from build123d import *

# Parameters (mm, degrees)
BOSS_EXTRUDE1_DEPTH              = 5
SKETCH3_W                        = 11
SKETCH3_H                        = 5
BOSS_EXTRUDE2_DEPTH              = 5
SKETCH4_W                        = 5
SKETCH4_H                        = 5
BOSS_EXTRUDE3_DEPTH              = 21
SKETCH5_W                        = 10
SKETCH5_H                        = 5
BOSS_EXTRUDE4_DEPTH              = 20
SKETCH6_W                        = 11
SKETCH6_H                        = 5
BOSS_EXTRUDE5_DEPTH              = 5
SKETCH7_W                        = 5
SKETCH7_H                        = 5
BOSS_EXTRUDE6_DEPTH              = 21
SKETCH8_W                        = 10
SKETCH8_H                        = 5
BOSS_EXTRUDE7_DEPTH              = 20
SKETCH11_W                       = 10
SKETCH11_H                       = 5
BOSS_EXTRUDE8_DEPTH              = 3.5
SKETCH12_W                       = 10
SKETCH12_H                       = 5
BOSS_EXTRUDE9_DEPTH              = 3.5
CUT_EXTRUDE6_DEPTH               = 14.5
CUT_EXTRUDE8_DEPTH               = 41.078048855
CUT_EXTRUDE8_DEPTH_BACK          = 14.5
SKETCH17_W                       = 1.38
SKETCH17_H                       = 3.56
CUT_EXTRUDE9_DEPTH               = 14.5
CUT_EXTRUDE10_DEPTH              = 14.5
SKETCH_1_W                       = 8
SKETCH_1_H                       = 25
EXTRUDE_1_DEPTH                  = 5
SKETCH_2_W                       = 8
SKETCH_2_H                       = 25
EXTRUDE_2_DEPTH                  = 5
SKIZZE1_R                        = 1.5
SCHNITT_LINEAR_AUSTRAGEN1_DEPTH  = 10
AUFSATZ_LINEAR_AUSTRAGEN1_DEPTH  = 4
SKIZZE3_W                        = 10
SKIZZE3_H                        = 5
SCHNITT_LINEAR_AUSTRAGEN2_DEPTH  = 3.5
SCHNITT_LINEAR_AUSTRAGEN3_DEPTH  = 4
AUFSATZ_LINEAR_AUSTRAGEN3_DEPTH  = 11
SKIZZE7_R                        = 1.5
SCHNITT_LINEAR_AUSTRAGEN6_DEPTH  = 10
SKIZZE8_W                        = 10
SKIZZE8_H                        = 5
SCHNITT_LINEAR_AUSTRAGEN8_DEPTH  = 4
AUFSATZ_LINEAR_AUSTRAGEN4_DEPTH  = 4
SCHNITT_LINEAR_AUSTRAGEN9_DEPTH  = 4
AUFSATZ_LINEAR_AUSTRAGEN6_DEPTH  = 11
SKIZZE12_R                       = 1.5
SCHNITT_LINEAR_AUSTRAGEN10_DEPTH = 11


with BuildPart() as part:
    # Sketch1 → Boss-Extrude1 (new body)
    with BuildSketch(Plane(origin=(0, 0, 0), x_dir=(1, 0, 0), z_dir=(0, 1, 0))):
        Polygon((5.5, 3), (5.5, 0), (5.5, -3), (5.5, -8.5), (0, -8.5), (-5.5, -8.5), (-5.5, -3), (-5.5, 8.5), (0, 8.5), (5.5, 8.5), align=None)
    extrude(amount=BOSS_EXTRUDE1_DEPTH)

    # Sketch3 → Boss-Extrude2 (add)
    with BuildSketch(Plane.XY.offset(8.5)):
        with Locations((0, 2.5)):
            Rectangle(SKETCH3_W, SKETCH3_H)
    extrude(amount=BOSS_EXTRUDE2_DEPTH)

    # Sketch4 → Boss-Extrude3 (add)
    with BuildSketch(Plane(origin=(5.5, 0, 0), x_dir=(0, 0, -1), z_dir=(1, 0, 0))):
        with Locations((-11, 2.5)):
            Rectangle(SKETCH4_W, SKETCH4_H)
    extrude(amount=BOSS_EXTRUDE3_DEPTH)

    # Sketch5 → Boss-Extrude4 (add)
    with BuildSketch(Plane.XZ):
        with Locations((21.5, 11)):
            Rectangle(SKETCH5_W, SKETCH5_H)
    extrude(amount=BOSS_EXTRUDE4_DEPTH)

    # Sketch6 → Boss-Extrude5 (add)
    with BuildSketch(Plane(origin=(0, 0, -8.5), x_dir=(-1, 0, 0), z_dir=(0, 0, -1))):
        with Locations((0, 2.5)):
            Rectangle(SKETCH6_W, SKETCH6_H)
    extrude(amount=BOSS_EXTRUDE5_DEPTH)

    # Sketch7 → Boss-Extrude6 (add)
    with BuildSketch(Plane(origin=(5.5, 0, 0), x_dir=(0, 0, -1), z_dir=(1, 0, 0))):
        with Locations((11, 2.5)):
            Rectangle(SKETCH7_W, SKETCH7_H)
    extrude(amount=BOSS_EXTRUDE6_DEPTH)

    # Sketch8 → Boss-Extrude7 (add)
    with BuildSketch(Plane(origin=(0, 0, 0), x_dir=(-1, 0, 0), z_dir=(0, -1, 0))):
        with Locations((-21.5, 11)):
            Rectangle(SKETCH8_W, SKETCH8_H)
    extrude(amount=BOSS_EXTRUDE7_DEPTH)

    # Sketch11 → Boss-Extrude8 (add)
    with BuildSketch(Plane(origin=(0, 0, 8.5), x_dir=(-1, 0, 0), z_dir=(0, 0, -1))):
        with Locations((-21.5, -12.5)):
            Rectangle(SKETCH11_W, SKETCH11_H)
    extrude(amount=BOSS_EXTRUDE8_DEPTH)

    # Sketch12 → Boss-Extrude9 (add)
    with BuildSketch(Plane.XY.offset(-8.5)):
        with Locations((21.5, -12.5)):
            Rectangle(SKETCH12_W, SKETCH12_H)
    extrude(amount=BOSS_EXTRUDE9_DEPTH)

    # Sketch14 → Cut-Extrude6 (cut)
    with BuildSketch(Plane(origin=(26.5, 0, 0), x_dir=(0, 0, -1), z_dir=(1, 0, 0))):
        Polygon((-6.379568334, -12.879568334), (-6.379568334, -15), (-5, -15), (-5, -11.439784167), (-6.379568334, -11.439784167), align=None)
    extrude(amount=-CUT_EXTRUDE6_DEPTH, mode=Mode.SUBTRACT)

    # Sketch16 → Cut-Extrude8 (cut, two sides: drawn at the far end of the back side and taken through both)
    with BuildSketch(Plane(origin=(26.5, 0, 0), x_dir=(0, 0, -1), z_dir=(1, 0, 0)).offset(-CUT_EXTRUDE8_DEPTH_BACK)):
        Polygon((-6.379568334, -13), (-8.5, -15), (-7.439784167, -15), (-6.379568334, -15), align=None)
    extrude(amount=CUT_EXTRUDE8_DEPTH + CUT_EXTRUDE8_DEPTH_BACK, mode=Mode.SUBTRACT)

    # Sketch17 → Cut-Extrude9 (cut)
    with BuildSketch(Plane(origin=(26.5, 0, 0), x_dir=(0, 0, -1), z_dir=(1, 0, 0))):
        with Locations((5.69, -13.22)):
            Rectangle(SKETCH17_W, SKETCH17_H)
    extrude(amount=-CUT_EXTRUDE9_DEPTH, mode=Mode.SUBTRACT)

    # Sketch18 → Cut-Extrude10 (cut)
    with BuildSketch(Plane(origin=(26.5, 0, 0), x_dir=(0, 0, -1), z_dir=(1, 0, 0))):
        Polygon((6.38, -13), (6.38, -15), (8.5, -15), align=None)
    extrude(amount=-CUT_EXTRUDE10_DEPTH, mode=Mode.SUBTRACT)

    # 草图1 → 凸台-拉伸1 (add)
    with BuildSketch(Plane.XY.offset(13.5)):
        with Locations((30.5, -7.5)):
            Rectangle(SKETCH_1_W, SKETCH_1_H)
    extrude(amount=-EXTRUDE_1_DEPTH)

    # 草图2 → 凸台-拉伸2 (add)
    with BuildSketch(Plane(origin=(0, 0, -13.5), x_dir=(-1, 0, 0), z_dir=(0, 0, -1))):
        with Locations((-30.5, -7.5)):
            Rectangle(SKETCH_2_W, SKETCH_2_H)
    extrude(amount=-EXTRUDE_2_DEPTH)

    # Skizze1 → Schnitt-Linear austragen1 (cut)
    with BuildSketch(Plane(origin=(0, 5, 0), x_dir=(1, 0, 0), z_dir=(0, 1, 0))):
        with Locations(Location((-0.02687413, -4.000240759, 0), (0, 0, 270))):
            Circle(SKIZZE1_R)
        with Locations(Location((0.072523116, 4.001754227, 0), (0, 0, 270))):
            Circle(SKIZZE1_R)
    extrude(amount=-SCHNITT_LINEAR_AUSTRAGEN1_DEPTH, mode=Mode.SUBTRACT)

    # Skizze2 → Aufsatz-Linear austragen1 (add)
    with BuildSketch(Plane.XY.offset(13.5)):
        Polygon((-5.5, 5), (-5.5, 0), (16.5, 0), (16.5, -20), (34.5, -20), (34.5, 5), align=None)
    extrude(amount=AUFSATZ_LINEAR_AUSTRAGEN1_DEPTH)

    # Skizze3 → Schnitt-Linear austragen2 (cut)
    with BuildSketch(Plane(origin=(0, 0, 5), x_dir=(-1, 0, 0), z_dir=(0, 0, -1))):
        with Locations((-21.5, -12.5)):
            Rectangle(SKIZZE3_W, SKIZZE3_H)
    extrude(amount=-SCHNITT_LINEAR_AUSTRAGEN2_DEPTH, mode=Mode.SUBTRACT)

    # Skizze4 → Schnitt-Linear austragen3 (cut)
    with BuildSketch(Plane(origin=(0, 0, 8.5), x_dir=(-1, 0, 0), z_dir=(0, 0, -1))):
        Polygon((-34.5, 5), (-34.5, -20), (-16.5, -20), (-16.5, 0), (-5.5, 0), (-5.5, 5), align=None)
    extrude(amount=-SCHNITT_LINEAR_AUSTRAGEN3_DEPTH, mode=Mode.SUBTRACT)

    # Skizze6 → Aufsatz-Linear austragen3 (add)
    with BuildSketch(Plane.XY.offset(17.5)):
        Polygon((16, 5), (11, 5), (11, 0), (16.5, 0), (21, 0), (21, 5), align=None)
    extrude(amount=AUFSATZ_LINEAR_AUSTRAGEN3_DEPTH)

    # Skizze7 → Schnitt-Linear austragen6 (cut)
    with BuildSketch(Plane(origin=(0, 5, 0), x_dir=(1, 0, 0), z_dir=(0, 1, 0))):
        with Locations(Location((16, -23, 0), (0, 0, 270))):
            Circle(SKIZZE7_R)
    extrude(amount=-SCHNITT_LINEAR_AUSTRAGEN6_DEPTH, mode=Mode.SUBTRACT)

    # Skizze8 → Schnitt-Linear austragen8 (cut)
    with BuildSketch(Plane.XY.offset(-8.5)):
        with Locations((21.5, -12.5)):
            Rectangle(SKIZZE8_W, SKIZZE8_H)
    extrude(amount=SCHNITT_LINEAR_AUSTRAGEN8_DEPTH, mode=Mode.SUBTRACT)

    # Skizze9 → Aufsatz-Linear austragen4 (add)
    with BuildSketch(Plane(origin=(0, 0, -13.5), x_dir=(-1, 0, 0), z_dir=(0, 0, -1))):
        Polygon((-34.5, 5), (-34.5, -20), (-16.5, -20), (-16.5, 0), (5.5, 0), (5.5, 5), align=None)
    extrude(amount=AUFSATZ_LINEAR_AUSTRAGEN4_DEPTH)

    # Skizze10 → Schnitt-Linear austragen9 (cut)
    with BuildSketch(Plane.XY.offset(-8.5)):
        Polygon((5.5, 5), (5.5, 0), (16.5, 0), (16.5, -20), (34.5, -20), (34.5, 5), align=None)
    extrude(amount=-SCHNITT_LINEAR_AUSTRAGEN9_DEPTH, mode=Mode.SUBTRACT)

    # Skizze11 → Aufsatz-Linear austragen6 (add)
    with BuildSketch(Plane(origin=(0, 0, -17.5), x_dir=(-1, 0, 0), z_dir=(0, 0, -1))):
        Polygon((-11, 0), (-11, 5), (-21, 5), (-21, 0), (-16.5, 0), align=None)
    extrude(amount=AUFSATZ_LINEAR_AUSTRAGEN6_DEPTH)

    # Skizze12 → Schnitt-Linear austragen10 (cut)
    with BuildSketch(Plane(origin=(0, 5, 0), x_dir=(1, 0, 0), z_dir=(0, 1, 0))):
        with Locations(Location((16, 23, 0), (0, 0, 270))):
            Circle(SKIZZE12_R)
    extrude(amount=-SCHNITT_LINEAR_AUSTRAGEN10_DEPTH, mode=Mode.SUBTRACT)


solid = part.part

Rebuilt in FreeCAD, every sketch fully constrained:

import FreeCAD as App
import Part
import Sketcher
from FreeCAD import Vector
Q = App.Units.Quantity

doc = App.newDocument("Part")
params = doc.addObject("Spreadsheet::Sheet", "Params")
for row, (alias, value) in enumerate([
    ("sketch1_width", "11 mm"),
    ("sketch1_height", "17 mm"),
    ("pad1_length", "5 mm"),
    ("sketch2_width", "11 mm"),
    ("sketch2_height", "5 mm"),
    ("pad2_length", "5 mm"),
    ("sketch3_width", "5 mm"),
    ("pad3_length", "21 mm"),
    ("sketch4_width", "10 mm"),
    ("sketch4_height", "5 mm"),
    ("pad4_length", "20 mm"),
    ("sketch5_width", "11 mm"),
    ("sketch5_height", "5 mm"),
    ("pad5_length", "5 mm"),
    ("sketch6_width", "5 mm"),
    ("pad6_length", "21 mm"),
    ("sketch7_width", "10 mm"),
    ("sketch7_height", "5 mm"),
    ("pad7_length", "20 mm"),
    ("sketch8_width", "10 mm"),
    ("sketch8_height", "5 mm"),
    ("pad8_length", "3.5 mm"),
    ("sketch9_width", "10 mm"),
    ("sketch9_height", "5 mm"),
    ("pad9_length", "3.5 mm"),
    ("pocket1_length", "14.5 mm"),
    ("sketch11_width", "2 mm"),
    ("sketch12_width", "3.56 mm"),
    ("sketch12_height", "1.38 mm"),
    ("pocket3_length", "14.5 mm"),
    ("sketch13_width", "2 mm"),
    ("sketch13_height", "2.12 mm"),
    ("pocket4_length", "14.5 mm"),
    ("sketch14_width", "8 mm"),
    ("sketch14_height", "25 mm"),
    ("pad10_length", "5 mm"),
    ("sketch15_width", "8 mm"),
    ("sketch15_height", "25 mm"),
    ("pad11_length", "5 mm"),
    ("sketch16_diameter", "3 mm"),
    ("pocket5_length", "10 mm"),
    ("sketch17_width", "22 mm"),
    ("sketch17_width2", "18 mm"),
    ("sketch17_height", "5 mm"),
    ("sketch17_height2", "20 mm"),
    ("pad12_length", "4 mm"),
    ("sketch18_width", "10 mm"),
    ("sketch18_height", "5 mm"),
    ("pocket6_length", "3.5 mm"),
    ("sketch19_width", "18 mm"),
    ("sketch19_width2", "11 mm"),
    ("sketch19_height", "25 mm"),
    ("sketch19_height2", "20 mm"),
    ("pocket7_length", "4 mm"),
    ("sketch20_width", "10 mm"),
    ("sketch20_height", "5 mm"),
    ("pad13_length", "11 mm"),
    ("sketch21_diameter", "3 mm"),
    ("pocket8_length", "10 mm"),
    ("sketch22_width", "10 mm"),
    ("sketch22_height", "5 mm"),
    ("pocket9_length", "4 mm"),
    ("sketch23_width", "18 mm"),
    ("sketch23_width2", "22 mm"),
    ("sketch23_height", "25 mm"),
    ("sketch23_height2", "20 mm"),
    ("pad14_length", "4 mm"),
    ("sketch24_width", "11 mm"),
    ("sketch24_width2", "18 mm"),
    ("sketch24_height", "5 mm"),
    ("sketch24_height2", "20 mm"),
    ("pocket10_length", "4 mm"),
    ("sketch25_width", "10 mm"),
    ("sketch25_height", "5 mm"),
    ("pad15_length", "11 mm"),
    ("sketch26_diameter", "3 mm"),
    ("pocket11_length", "11 mm"),
], start=1):
    params.set(f"A{row}", alias)
    params.set(f"B{row}", "=" + value)
    params.setAlias(f"B{row}", alias)

body = doc.addObject("PartDesign::Body", "Body")

sketch1 = body.newObject("Sketcher::SketchObject", "Sketch")
sketch1.AttachmentSupport = (doc.getObject("XZ_Plane"), [""])
sketch1.MapMode = "FlatFace"
sketch1.addGeometry(Part.LineSegment(Vector(6, 8, 0), Vector(6, -8, 0)), False)
sketch1.addGeometry(Part.LineSegment(Vector(6, -8, 0), Vector(-6, -8, 0)), False)
sketch1.addGeometry(Part.LineSegment(Vector(-6, -8, 0), Vector(-6, 8, 0)), False)
sketch1.addGeometry(Part.LineSegment(Vector(-6, 8, 0), Vector(6, 8, 0)), False)
sketch1.addConstraint(Sketcher.Constraint("Coincident", 0, 2, 1, 1))
sketch1.addConstraint(Sketcher.Constraint("Coincident", 1, 2, 2, 1))
sketch1.addConstraint(Sketcher.Constraint("Coincident", 2, 2, 3, 1))
sketch1.addConstraint(Sketcher.Constraint("Coincident", 3, 2, 0, 1))
sketch1.addConstraint(Sketcher.Constraint("Vertical", 0))
sketch1.addConstraint(Sketcher.Constraint("Horizontal", 1))
sketch1.addConstraint(Sketcher.Constraint("Vertical", 2))
sketch1.addConstraint(Sketcher.Constraint("Horizontal", 3))
sketch1.addConstraint(Sketcher.Constraint("Symmetric", 0, 2, 2, 2, -1, 1))
sketch1.addConstraint(Sketcher.Constraint("DistanceX", 1, 2, 1, 1, Q("11 mm")))
sketch1.addConstraint(Sketcher.Constraint("DistanceY", 0, 2, 0, 1, Q("17 mm")))
sketch1.setExpression("Constraints[9]", "Params.sketch1_width")
sketch1.setExpression("Constraints[10]", "Params.sketch1_height")
pad1 = body.newObject("PartDesign::Pad", "Pad")
pad1.Profile = sketch1
pad1.setExpression("Length", "Params.pad1_length")
pad1.Reversed = True

sketch2 = body.newObject("Sketcher::SketchObject", "Sketch001")
sketch2.AttachmentSupport = (doc.getObject("XY_Plane"), [""])
sketch2.MapMode = "FlatFace"
sketch2.AttachmentOffset = App.Placement(Vector(0, 0, 8.5), App.Rotation())
sketch2.addGeometry(Part.LineSegment(Vector(-6, 5, 0), Vector(-6, 0, 0)), False)
sketch2.addGeometry(Part.LineSegment(Vector(-6, 0, 0), Vector(6, 0, 0)), False)
sketch2.addGeometry(Part.LineSegment(Vector(6, 0, 0), Vector(6, 5, 0)), False)
sketch2.addGeometry(Part.LineSegment(Vector(6, 5, 0), Vector(-6, 5, 0)), False)
sketch2.addConstraint(Sketcher.Constraint("Coincident", 0, 2, 1, 1))
sketch2.addConstraint(Sketcher.Constraint("Coincident", 1, 2, 2, 1))
sketch2.addConstraint(Sketcher.Constraint("Coincident", 2, 2, 3, 1))
sketch2.addConstraint(Sketcher.Constraint("Coincident", 3, 2, 0, 1))
sketch2.addConstraint(Sketcher.Constraint("Vertical", 0))
sketch2.addConstraint(Sketcher.Constraint("Horizontal", 1))
sketch2.addConstraint(Sketcher.Constraint("Vertical", 2))
sketch2.addConstraint(Sketcher.Constraint("Horizontal", 3))
sketch2.addConstraint(Sketcher.Constraint("Symmetric", 0, 2, 1, 2, -1, 1))
sketch2.addConstraint(Sketcher.Constraint("DistanceX", 1, 1, 1, 2, Q("11 mm")))
sketch2.addConstraint(Sketcher.Constraint("DistanceY", 0, 2, 0, 1, Q("5 mm")))
sketch2.setExpression("Constraints[9]", "Params.sketch2_width")
sketch2.setExpression("Constraints[10]", "Params.sketch2_height")
pad2 = body.newObject("PartDesign::Pad", "Pad001")
pad2.Profile = sketch2
pad2.setExpression("Length", "Params.pad2_length")

sketch3 = body.newObject("Sketcher::SketchObject", "Sketch002")
sketch3.AttachmentSupport = (doc.getObject("YZ_Plane"), [""])
sketch3.MapMode = "FlatFace"
sketch3.AttachmentOffset = App.Placement(Vector(0, 0, 5.5), App.Rotation())
sketch3.addGeometry(Part.LineSegment(Vector(5, 14, 0), Vector(0, 14, 0)), False)
sketch3.addGeometry(Part.LineSegment(Vector(0, 14, 0), Vector(0, 8, 0)), False)
sketch3.addGeometry(Part.LineSegment(Vector(0, 8, 0), Vector(5, 8, 0)), False)
sketch3.addGeometry(Part.LineSegment(Vector(5, 8, 0), Vector(5, 14, 0)), False)
sketch3.addConstraint(Sketcher.Constraint("Coincident", 0, 2, 1, 1))
sketch3.addConstraint(Sketcher.Constraint("Coincident", 1, 2, 2, 1))
sketch3.addConstraint(Sketcher.Constraint("Coincident", 2, 2, 3, 1))
sketch3.addConstraint(Sketcher.Constraint("Coincident", 3, 2, 0, 1))
sketch3.addConstraint(Sketcher.Constraint("Horizontal", 0))
sketch3.addConstraint(Sketcher.Constraint("Vertical", 1))
sketch3.addConstraint(Sketcher.Constraint("Horizontal", 2))
sketch3.addConstraint(Sketcher.Constraint("Vertical", 3))
sketch3.addConstraint(Sketcher.Constraint("PointOnObject", 0, 2, -2))
sketch3.addConstraint(Sketcher.Constraint("Equal", 2, 1))
sketch3.addConstraint(Sketcher.Constraint("DistanceX", 0, 2, 0, 1, Q("5 mm")))
sketch3.addConstraint(Sketcher.Constraint("DistanceY", -1, 1, 0, 2, Q("13.5 mm")))
sketch3.setExpression("Constraints[10]", "Params.sketch3_width")
pad3 = body.newObject("PartDesign::Pad", "Pad002")
pad3.Profile = sketch3
pad3.setExpression("Length", "Params.pad3_length")

sketch4 = body.newObject("Sketcher::SketchObject", "Sketch003")
sketch4.AttachmentSupport = (doc.getObject("XZ_Plane"), [""])
sketch4.MapMode = "FlatFace"
sketch4.addGeometry(Part.LineSegment(Vector(16, 14, 0), Vector(16, 8, 0)), False)
sketch4.addGeometry(Part.LineSegment(Vector(16, 8, 0), Vector(26, 8, 0)), False)
sketch4.addGeometry(Part.LineSegment(Vector(26, 8, 0), Vector(26, 14, 0)), False)
sketch4.addGeometry(Part.LineSegment(Vector(26, 14, 0), Vector(16, 14, 0)), False)
sketch4.addConstraint(Sketcher.Constraint("Coincident", 0, 2, 1, 1))
sketch4.addConstraint(Sketcher.Constraint("Coincident", 1, 2, 2, 1))
sketch4.addConstraint(Sketcher.Constraint("Coincident", 2, 2, 3, 1))
sketch4.addConstraint(Sketcher.Constraint("Coincident", 3, 2, 0, 1))
sketch4.addConstraint(Sketcher.Constraint("Vertical", 0))
sketch4.addConstraint(Sketcher.Constraint("Horizontal", 1))
sketch4.addConstraint(Sketcher.Constraint("Vertical", 2))
sketch4.addConstraint(Sketcher.Constraint("Horizontal", 3))
sketch4.addConstraint(Sketcher.Constraint("DistanceX", 1, 1, 1, 2, Q("10 mm")))
sketch4.addConstraint(Sketcher.Constraint("DistanceY", 0, 2, 0, 1, Q("5 mm")))
sketch4.addConstraint(Sketcher.Constraint("DistanceX", -1, 1, 0, 2, Q("16.5 mm")))
sketch4.addConstraint(Sketcher.Constraint("DistanceY", -1, 1, 0, 2, Q("8.5 mm")))
sketch4.setExpression("Constraints[8]", "Params.sketch4_width")
sketch4.setExpression("Constraints[9]", "Params.sketch4_height")
pad4 = body.newObject("PartDesign::Pad", "Pad003")
pad4.Profile = sketch4
pad4.setExpression("Length", "Params.pad4_length")

sketch5 = body.newObject("Sketcher::SketchObject", "Sketch004")
sketch5.AttachmentSupport = (doc.getObject("XY_Plane"), [""])
sketch5.MapMode = "FlatFace"
sketch5.AttachmentOffset = App.Placement(Vector(0, 0, -8.5), App.Rotation())
sketch5.addGeometry(Part.LineSegment(Vector(6, 5, 0), Vector(6, 0, 0)), False)
sketch5.addGeometry(Part.LineSegment(Vector(6, 0, 0), Vector(-6, 0, 0)), False)
sketch5.addGeometry(Part.LineSegment(Vector(-6, 0, 0), Vector(-6, 5, 0)), False)
sketch5.addGeometry(Part.LineSegment(Vector(-6, 5, 0), Vector(6, 5, 0)), False)
sketch5.addConstraint(Sketcher.Constraint("Coincident", 0, 2, 1, 1))
sketch5.addConstraint(Sketcher.Constraint("Coincident", 1, 2, 2, 1))
sketch5.addConstraint(Sketcher.Constraint("Coincident", 2, 2, 3, 1))
sketch5.addConstraint(Sketcher.Constraint("Coincident", 3, 2, 0, 1))
sketch5.addConstraint(Sketcher.Constraint("Vertical", 0))
sketch5.addConstraint(Sketcher.Constraint("Horizontal", 1))
sketch5.addConstraint(Sketcher.Constraint("Vertical", 2))
sketch5.addConstraint(Sketcher.Constraint("Horizontal", 3))
sketch5.addConstraint(Sketcher.Constraint("Symmetric", 0, 2, 1, 2, -1, 1))
sketch5.addConstraint(Sketcher.Constraint("DistanceX", 1, 2, 1, 1, Q("11 mm")))
sketch5.addConstraint(Sketcher.Constraint("DistanceY", 0, 2, 0, 1, Q("5 mm")))
sketch5.setExpression("Constraints[9]", "Params.sketch5_width")
sketch5.setExpression("Constraints[10]", "Params.sketch5_height")
pad5 = body.newObject("PartDesign::Pad", "Pad004")
pad5.Profile = sketch5
pad5.setExpression("Length", "Params.pad5_length")
pad5.Reversed = True

sketch6 = body.newObject("Sketcher::SketchObject", "Sketch005")
sketch6.AttachmentSupport = (doc.getObject("YZ_Plane"), [""])
sketch6.MapMode = "FlatFace"
sketch6.AttachmentOffset = App.Placement(Vector(0, 0, 5.5), App.Rotation())
sketch6.addGeometry(Part.LineSegment(Vector(5, -8, 0), Vector(0, -8, 0)), False)
sketch6.addGeometry(Part.LineSegment(Vector(0, -8, 0), Vector(0, -14, 0)), False)
sketch6.addGeometry(Part.LineSegment(Vector(0, -14, 0), Vector(5, -14, 0)), False)
sketch6.addGeometry(Part.LineSegment(Vector(5, -14, 0), Vector(5, -8, 0)), False)
sketch6.addConstraint(Sketcher.Constraint("Coincident", 0, 2, 1, 1))
sketch6.addConstraint(Sketcher.Constraint("Coincident", 1, 2, 2, 1))
sketch6.addConstraint(Sketcher.Constraint("Coincident", 2, 2, 3, 1))
sketch6.addConstraint(Sketcher.Constraint("Coincident", 3, 2, 0, 1))
sketch6.addConstraint(Sketcher.Constraint("Horizontal", 0))
sketch6.addConstraint(Sketcher.Constraint("Vertical", 1))
sketch6.addConstraint(Sketcher.Constraint("Horizontal", 2))
sketch6.addConstraint(Sketcher.Constraint("Vertical", 3))
sketch6.addConstraint(Sketcher.Constraint("PointOnObject", 0, 2, -2))
sketch6.addConstraint(Sketcher.Constraint("Equal", 2, 1))
sketch6.addConstraint(Sketcher.Constraint("DistanceX", 0, 2, 0, 1, Q("5 mm")))
sketch6.addConstraint(Sketcher.Constraint("DistanceY", 0, 2, -1, 1, Q("8.5 mm")))
sketch6.setExpression("Constraints[10]", "Params.sketch6_width")
pad6 = body.newObject("PartDesign::Pad", "Pad005")
pad6.Profile = sketch6
pad6.setExpression("Length", "Params.pad6_length")

sketch7 = body.newObject("Sketcher::SketchObject", "Sketch006")
sketch7.AttachmentSupport = (doc.getObject("XZ_Plane"), [""])
sketch7.MapMode = "FlatFace"
sketch7.addGeometry(Part.LineSegment(Vector(26, -14, 0), Vector(26, -8, 0)), False)
sketch7.addGeometry(Part.LineSegment(Vector(26, -8, 0), Vector(16, -8, 0)), False)
sketch7.addGeometry(Part.LineSegment(Vector(16, -8, 0), Vector(16, -14, 0)), False)
sketch7.addGeometry(Part.LineSegment(Vector(16, -14, 0), Vector(26, -14, 0)), False)
sketch7.addConstraint(Sketcher.Constraint("Coincident", 0, 2, 1, 1))
sketch7.addConstraint(Sketcher.Constraint("Coincident", 1, 2, 2, 1))
sketch7.addConstraint(Sketcher.Constraint("Coincident", 2, 2, 3, 1))
sketch7.addConstraint(Sketcher.Constraint("Coincident", 3, 2, 0, 1))
sketch7.addConstraint(Sketcher.Constraint("Vertical", 0))
sketch7.addConstraint(Sketcher.Constraint("Horizontal", 1))
sketch7.addConstraint(Sketcher.Constraint("Vertical", 2))
sketch7.addConstraint(Sketcher.Constraint("Horizontal", 3))
sketch7.addConstraint(Sketcher.Constraint("DistanceX", 1, 2, 1, 1, Q("10 mm")))
sketch7.addConstraint(Sketcher.Constraint("DistanceY", 0, 1, 0, 2, Q("5 mm")))
sketch7.addConstraint(Sketcher.Constraint("DistanceX", -1, 1, 0, 2, Q("26.5 mm")))
sketch7.addConstraint(Sketcher.Constraint("DistanceY", 0, 2, -1, 1, Q("8.5 mm")))
sketch7.setExpression("Constraints[8]", "Params.sketch7_width")
sketch7.setExpression("Constraints[9]", "Params.sketch7_height")
pad7 = body.newObject("PartDesign::Pad", "Pad006")
pad7.Profile = sketch7
pad7.setExpression("Length", "Params.pad7_length")

sketch8 = body.newObject("Sketcher::SketchObject", "Sketch007")
sketch8.AttachmentSupport = (doc.getObject("XY_Plane"), [""])
sketch8.MapMode = "FlatFace"
sketch8.AttachmentOffset = App.Placement(Vector(0, 0, 8.5), App.Rotation())
sketch8.addGeometry(Part.LineSegment(Vector(26, -10, 0), Vector(26, -15, 0)), False)
sketch8.addGeometry(Part.LineSegment(Vector(26, -15, 0), Vector(16, -15, 0)), False)
sketch8.addGeometry(Part.LineSegment(Vector(16, -15, 0), Vector(16, -10, 0)), False)
sketch8.addGeometry(Part.LineSegment(Vector(16, -10, 0), Vector(26, -10, 0)), False)
sketch8.addConstraint(Sketcher.Constraint("Coincident", 0, 2, 1, 1))
sketch8.addConstraint(Sketcher.Constraint("Coincident", 1, 2, 2, 1))
sketch8.addConstraint(Sketcher.Constraint("Coincident", 2, 2, 3, 1))
sketch8.addConstraint(Sketcher.Constraint("Coincident", 3, 2, 0, 1))
sketch8.addConstraint(Sketcher.Constraint("Vertical", 0))
sketch8.addConstraint(Sketcher.Constraint("Horizontal", 1))
sketch8.addConstraint(Sketcher.Constraint("Vertical", 2))
sketch8.addConstraint(Sketcher.Constraint("Horizontal", 3))
sketch8.addConstraint(Sketcher.Constraint("DistanceX", 1, 2, 1, 1, Q("10 mm")))
sketch8.addConstraint(Sketcher.Constraint("DistanceY", 0, 2, 0, 1, Q("5 mm")))
sketch8.addConstraint(Sketcher.Constraint("DistanceY", 0, 2, -1, 1, Q("15 mm")))
sketch8.addConstraint(Sketcher.Constraint("DistanceX", -1, 1, 0, 2, Q("26.5 mm")))
sketch8.setExpression("Constraints[8]", "Params.sketch8_width")
sketch8.setExpression("Constraints[9]", "Params.sketch8_height")
pad8 = body.newObject("PartDesign::Pad", "Pad007")
pad8.Profile = sketch8
pad8.setExpression("Length", "Params.pad8_length")
pad8.Reversed = True

sketch9 = body.newObject("Sketcher::SketchObject", "Sketch008")
sketch9.AttachmentSupport = (doc.getObject("XY_Plane"), [""])
sketch9.MapMode = "FlatFace"
sketch9.AttachmentOffset = App.Placement(Vector(0, 0, -8.5), App.Rotation())
sketch9.addGeometry(Part.LineSegment(Vector(16, -10, 0), Vector(16, -15, 0)), False)
sketch9.addGeometry(Part.LineSegment(Vector(16, -15, 0), Vector(26, -15, 0)), False)
sketch9.addGeometry(Part.LineSegment(Vector(26, -15, 0), Vector(26, -10, 0)), False)
sketch9.addGeometry(Part.LineSegment(Vector(26, -10, 0), Vector(16, -10, 0)), False)
sketch9.addConstraint(Sketcher.Constraint("Coincident", 0, 2, 1, 1))
sketch9.addConstraint(Sketcher.Constraint("Coincident", 1, 2, 2, 1))
sketch9.addConstraint(Sketcher.Constraint("Coincident", 2, 2, 3, 1))
sketch9.addConstraint(Sketcher.Constraint("Coincident", 3, 2, 0, 1))
sketch9.addConstraint(Sketcher.Constraint("Vertical", 0))
sketch9.addConstraint(Sketcher.Constraint("Horizontal", 1))
sketch9.addConstraint(Sketcher.Constraint("Vertical", 2))
sketch9.addConstraint(Sketcher.Constraint("Horizontal", 3))
sketch9.addConstraint(Sketcher.Constraint("DistanceX", 1, 1, 1, 2, Q("10 mm")))
sketch9.addConstraint(Sketcher.Constraint("DistanceY", 0, 2, 0, 1, Q("5 mm")))
sketch9.addConstraint(Sketcher.Constraint("DistanceY", 0, 2, -1, 1, Q("15 mm")))
sketch9.addConstraint(Sketcher.Constraint("DistanceX", -1, 1, 0, 2, Q("16.5 mm")))
sketch9.setExpression("Constraints[8]", "Params.sketch9_width")
sketch9.setExpression("Constraints[9]", "Params.sketch9_height")
pad9 = body.newObject("PartDesign::Pad", "Pad008")
pad9.Profile = sketch9
pad9.setExpression("Length", "Params.pad9_length")

sketch10 = body.newObject("Sketcher::SketchObject", "Sketch009")
sketch10.AttachmentSupport = (doc.getObject("YZ_Plane"), [""])
sketch10.MapMode = "FlatFace"
sketch10.AttachmentOffset = App.Placement(Vector(0, 0, 26.5), App.Rotation())
sketch10.addGeometry(Part.LineSegment(Vector(-15, 6.4, 0), Vector(-15, 5, 0)), False)
sketch10.addGeometry(Part.LineSegment(Vector(-15, 5, 0), Vector(-11.4, 5, 0)), False)
sketch10.addGeometry(Part.LineSegment(Vector(-11.4, 5, 0), Vector(-11.4, 6.4, 0)), False)
sketch10.addGeometry(Part.LineSegment(Vector(-11.4, 6.4, 0), Vector(-15, 6.4, 0)), False)
sketch10.addConstraint(Sketcher.Constraint("Coincident", 0, 2, 1, 1))
sketch10.addConstraint(Sketcher.Constraint("Coincident", 1, 2, 2, 1))
sketch10.addConstraint(Sketcher.Constraint("Coincident", 2, 2, 3, 1))
sketch10.addConstraint(Sketcher.Constraint("Coincident", 3, 2, 0, 1))
sketch10.addConstraint(Sketcher.Constraint("Vertical", 0))
sketch10.addConstraint(Sketcher.Constraint("Horizontal", 1))
sketch10.addConstraint(Sketcher.Constraint("Vertical", 2))
sketch10.addConstraint(Sketcher.Constraint("Horizontal", 3))
sketch10.addConstraint(Sketcher.Constraint("DistanceX", 0, 2, -1, 1, Q("15 mm")))
sketch10.addConstraint(Sketcher.Constraint("DistanceY", -1, 1, 0, 2, Q("5 mm")))
sketch10.addConstraint(Sketcher.Constraint("DistanceY", 0, 2, 0, 1, Q("1.379568 mm")))
sketch10.addConstraint(Sketcher.Constraint("DistanceX", 1, 1, 1, 2, Q("3.560216 mm")))
pocket1 = body.newObject("PartDesign::Pocket", "Pocket")
pocket1.Profile = sketch10
pocket1.setExpression("Length", "Params.pocket1_length")

sketch11 = body.newObject("Sketcher::SketchObject", "Sketch010")
sketch11.AttachmentSupport = (doc.getObject("YZ_Plane"), [""])
sketch11.MapMode = "FlatFace"
sketch11.AttachmentOffset = App.Placement(Vector(0, 0, 26.5), App.Rotation())
sketch11.addGeometry(Part.LineSegment(Vector(-13, 6.4, 0), Vector(-15, 8.5, 0)), False)
sketch11.addGeometry(Part.LineSegment(Vector(-15, 8.5, 0), Vector(-15, 6.4, 0)), False)
sketch11.addGeometry(Part.LineSegment(Vector(-15, 6.4, 0), Vector(-13, 6.4, 0)), False)
sketch11.addConstraint(Sketcher.Constraint("Coincident", 0, 2, 1, 1))
sketch11.addConstraint(Sketcher.Constraint("Coincident", 1, 2, 2, 1))
sketch11.addConstraint(Sketcher.Constraint("Coincident", 2, 2, 0, 1))
sketch11.addConstraint(Sketcher.Constraint("Vertical", 1))
sketch11.addConstraint(Sketcher.Constraint("Horizontal", 2))
sketch11.addConstraint(Sketcher.Constraint("DistanceX", 2, 1, 2, 2, Q("2 mm")))
sketch11.addConstraint(Sketcher.Constraint("DistanceX", 0, 2, -1, 1, Q("15 mm")))
sketch11.addConstraint(Sketcher.Constraint("DistanceY", -1, 1, 0, 2, Q("8.5 mm")))
sketch11.addConstraint(Sketcher.Constraint("DistanceY", 1, 2, 1, 1, Q("2.120432 mm")))
sketch11.setExpression("Constraints[5]", "Params.sketch11_width")
pocket2 = body.newObject("PartDesign::Pocket", "Pocket001")
pocket2.Profile = sketch11
pocket2.Type = "ThroughAll"
pocket2.Midplane = True

sketch12 = body.newObject("Sketcher::SketchObject", "Sketch011")
sketch12.AttachmentSupport = (doc.getObject("YZ_Plane"), [""])
sketch12.MapMode = "FlatFace"
sketch12.AttachmentOffset = App.Placement(Vector(0, 0, 26.5), App.Rotation())
sketch12.addGeometry(Part.LineSegment(Vector(-11.4, -5, 0), Vector(-15, -5, 0)), False)
sketch12.addGeometry(Part.LineSegment(Vector(-15, -5, 0), Vector(-15, -6.4, 0)), False)
sketch12.addGeometry(Part.LineSegment(Vector(-15, -6.4, 0), Vector(-11.4, -6.4, 0)), False)
sketch12.addGeometry(Part.LineSegment(Vector(-11.4, -6.4, 0), Vector(-11.4, -5, 0)), False)
sketch12.addConstraint(Sketcher.Constraint("Coincident", 0, 2, 1, 1))
sketch12.addConstraint(Sketcher.Constraint("Coincident", 1, 2, 2, 1))
sketch12.addConstraint(Sketcher.Constraint("Coincident", 2, 2, 3, 1))
sketch12.addConstraint(Sketcher.Constraint("Coincident", 3, 2, 0, 1))
sketch12.addConstraint(Sketcher.Constraint("Horizontal", 0))
sketch12.addConstraint(Sketcher.Constraint("Vertical", 1))
sketch12.addConstraint(Sketcher.Constraint("Horizontal", 2))
sketch12.addConstraint(Sketcher.Constraint("Vertical", 3))
sketch12.addConstraint(Sketcher.Constraint("DistanceX", 0, 2, -1, 1, Q("15 mm")))
sketch12.addConstraint(Sketcher.Constraint("DistanceY", 0, 2, -1, 1, Q("5 mm")))
sketch12.addConstraint(Sketcher.Constraint("DistanceX", 0, 2, 0, 1, Q("3.56 mm")))
sketch12.addConstraint(Sketcher.Constraint("DistanceY", 1, 2, 1, 1, Q("1.38 mm")))
sketch12.setExpression("Constraints[10]", "Params.sketch12_width")
sketch12.setExpression("Constraints[11]", "Params.sketch12_height")
pocket3 = body.newObject("PartDesign::Pocket", "Pocket002")
pocket3.Profile = sketch12
pocket3.setExpression("Length", "Params.pocket3_length")

sketch13 = body.newObject("Sketcher::SketchObject", "Sketch012")
sketch13.AttachmentSupport = (doc.getObject("YZ_Plane"), [""])
sketch13.MapMode = "FlatFace"
sketch13.AttachmentOffset = App.Placement(Vector(0, 0, 26.5), App.Rotation())
sketch13.addGeometry(Part.LineSegment(Vector(-13, -6.4, 0), Vector(-15, -6.4, 0)), False)
sketch13.addGeometry(Part.LineSegment(Vector(-15, -6.4, 0), Vector(-15, -8.5, 0)), False)
sketch13.addGeometry(Part.LineSegment(Vector(-15, -8.5, 0), Vector(-13, -6.4, 0)), False)
sketch13.addConstraint(Sketcher.Constraint("Coincident", 0, 2, 1, 1))
sketch13.addConstraint(Sketcher.Constraint("Coincident", 1, 2, 2, 1))
sketch13.addConstraint(Sketcher.Constraint("Coincident", 2, 2, 0, 1))
sketch13.addConstraint(Sketcher.Constraint("Horizontal", 0))
sketch13.addConstraint(Sketcher.Constraint("Vertical", 1))
sketch13.addConstraint(Sketcher.Constraint("DistanceX", 0, 2, 0, 1, Q("2 mm")))
sketch13.addConstraint(Sketcher.Constraint("DistanceX", 0, 2, -1, 1, Q("15 mm")))
sketch13.addConstraint(Sketcher.Constraint("DistanceY", 1, 2, 1, 1, Q("2.12 mm")))
sketch13.addConstraint(Sketcher.Constraint("DistanceY", 1, 2, -1, 1, Q("8.5 mm")))
sketch13.setExpression("Constraints[5]", "Params.sketch13_width")
sketch13.setExpression("Constraints[7]", "Params.sketch13_height")
pocket4 = body.newObject("PartDesign::Pocket", "Pocket003")
pocket4.Profile = sketch13
pocket4.setExpression("Length", "Params.pocket4_length")

sketch14 = body.newObject("Sketcher::SketchObject", "Sketch013")
sketch14.AttachmentSupport = (doc.getObject("XY_Plane"), [""])
sketch14.MapMode = "FlatFace"
sketch14.AttachmentOffset = App.Placement(Vector(0, 0, 13.5), App.Rotation())
sketch14.addGeometry(Part.LineSegment(Vector(26, 5, 0), Vector(26, -20, 0)), False)
sketch14.addGeometry(Part.LineSegment(Vector(26, -20, 0), Vector(34, -20, 0)), False)
sketch14.addGeometry(Part.LineSegment(Vector(34, -20, 0), Vector(34, 5, 0)), False)
sketch14.addGeometry(Part.LineSegment(Vector(34, 5, 0), Vector(26, 5, 0)), False)
sketch14.addConstraint(Sketcher.Constraint("Coincident", 0, 2, 1, 1))
sketch14.addConstraint(Sketcher.Constraint("Coincident", 1, 2, 2, 1))
sketch14.addConstraint(Sketcher.Constraint("Coincident", 2, 2, 3, 1))
sketch14.addConstraint(Sketcher.Constraint("Coincident", 3, 2, 0, 1))
sketch14.addConstraint(Sketcher.Constraint("Vertical", 0))
sketch14.addConstraint(Sketcher.Constraint("Horizontal", 1))
sketch14.addConstraint(Sketcher.Constraint("Vertical", 2))
sketch14.addConstraint(Sketcher.Constraint("Horizontal", 3))
sketch14.addConstraint(Sketcher.Constraint("DistanceX", 1, 1, 1, 2, Q("8 mm")))
sketch14.addConstraint(Sketcher.Constraint("DistanceY", 0, 2, 0, 1, Q("25 mm")))
sketch14.addConstraint(Sketcher.Constraint("DistanceY", 0, 2, -1, 1, Q("20 mm")))
sketch14.addConstraint(Sketcher.Constraint("DistanceX", -1, 1, 0, 2, Q("26.5 mm")))
sketch14.setExpression("Constraints[8]", "Params.sketch14_width")
sketch14.setExpression("Constraints[9]", "Params.sketch14_height")
pad10 = body.newObject("PartDesign::Pad", "Pad009")
pad10.Profile = sketch14
pad10.setExpression("Length", "Params.pad10_length")
pad10.Reversed = True

sketch15 = body.newObject("Sketcher::SketchObject", "Sketch014")
sketch15.AttachmentSupport = (doc.getObject("XY_Plane"), [""])
sketch15.MapMode = "FlatFace"
sketch15.AttachmentOffset = App.Placement(Vector(0, 0, -13.5), App.Rotation())
sketch15.addGeometry(Part.LineSegment(Vector(34, 5, 0), Vector(34, -20, 0)), False)
sketch15.addGeometry(Part.LineSegment(Vector(34, -20, 0), Vector(26, -20, 0)), False)
sketch15.addGeometry(Part.LineSegment(Vector(26, -20, 0), Vector(26, 5, 0)), False)
sketch15.addGeometry(Part.LineSegment(Vector(26, 5, 0), Vector(34, 5, 0)), False)
sketch15.addConstraint(Sketcher.Constraint("Coincident", 0, 2, 1, 1))
sketch15.addConstraint(Sketcher.Constraint("Coincident", 1, 2, 2, 1))
sketch15.addConstraint(Sketcher.Constraint("Coincident", 2, 2, 3, 1))
sketch15.addConstraint(Sketcher.Constraint("Coincident", 3, 2, 0, 1))
sketch15.addConstraint(Sketcher.Constraint("Vertical", 0))
sketch15.addConstraint(Sketcher.Constraint("Horizontal", 1))
sketch15.addConstraint(Sketcher.Constraint("Vertical", 2))
sketch15.addConstraint(Sketcher.Constraint("Horizontal", 3))
sketch15.addConstraint(Sketcher.Constraint("DistanceX", 1, 2, 1, 1, Q("8 mm")))
sketch15.addConstraint(Sketcher.Constraint("DistanceY", 0, 2, 0, 1, Q("25 mm")))
sketch15.addConstraint(Sketcher.Constraint("DistanceY", 0, 2, -1, 1, Q("20 mm")))
sketch15.addConstraint(Sketcher.Constraint("DistanceX", -1, 1, 0, 2, Q("34.5 mm")))
sketch15.setExpression("Constraints[8]", "Params.sketch15_width")
sketch15.setExpression("Constraints[9]", "Params.sketch15_height")
pad11 = body.newObject("PartDesign::Pad", "Pad010")
pad11.Profile = sketch15
pad11.setExpression("Length", "Params.pad11_length")

sketch16 = body.newObject("Sketcher::SketchObject", "Sketch015")
sketch16.AttachmentSupport = (doc.getObject("XZ_Plane"), [""])
sketch16.MapMode = "FlatFace"
sketch16.AttachmentOffset = App.Placement(Vector(0, 0, -5), App.Rotation())
sketch16.addGeometry(Part.Circle(Vector(0, 4, 0), Vector(0, 0, 1), 1.5), False)
sketch16.addGeometry(Part.Circle(Vector(0.1, -4, 0), Vector(0, 0, 1), 1.5), False)
sketch16.addConstraint(Sketcher.Constraint("Equal", 0, 1))
sketch16.addConstraint(Sketcher.Constraint("Diameter", 0, Q("3 mm")))
sketch16.addConstraint(Sketcher.Constraint("DistanceY", -1, 1, 0, 3, Q("4.000241 mm")))
sketch16.addConstraint(Sketcher.Constraint("DistanceX", 0, 3, -1, 1, Q("0.026874 mm")))
sketch16.addConstraint(Sketcher.Constraint("DistanceX", -1, 1, 1, 3, Q("0.072523 mm")))
sketch16.addConstraint(Sketcher.Constraint("DistanceY", 1, 3, -1, 1, Q("4.001754 mm")))
sketch16.setExpression("Constraints[1]", "Params.sketch16_diameter")
pocket5 = body.newObject("PartDesign::Pocket", "Pocket004")
pocket5.Profile = sketch16
pocket5.setExpression("Length", "Params.pocket5_length")
pocket5.Reversed = True

sketch17 = body.newObject("Sketcher::SketchObject", "Sketch016")
sketch17.AttachmentSupport = (doc.getObject("XY_Plane"), [""])
sketch17.MapMode = "FlatFace"
sketch17.AttachmentOffset = App.Placement(Vector(0, 0, 13.5), App.Rotation())
sketch17.addGeometry(Part.LineSegment(Vector(-6, 5, 0), Vector(-6, 0, 0)), False)
sketch17.addGeometry(Part.LineSegment(Vector(-6, 0, 0), Vector(16, 0, 0)), False)
sketch17.addGeometry(Part.LineSegment(Vector(16, 0, 0), Vector(16, -20, 0)), False)
sketch17.addGeometry(Part.LineSegment(Vector(16, -20, 0), Vector(34, -20, 0)), False)
sketch17.addGeometry(Part.LineSegment(Vector(34, -20, 0), Vector(34, 5, 0)), False)
sketch17.addGeometry(Part.LineSegment(Vector(34, 5, 0), Vector(-6, 5, 0)), False)
sketch17.addConstraint(Sketcher.Constraint("Coincident", 0, 2, 1, 1))
sketch17.addConstraint(Sketcher.Constraint("Coincident", 1, 2, 2, 1))
sketch17.addConstraint(Sketcher.Constraint("Coincident", 2, 2, 3, 1))
sketch17.addConstraint(Sketcher.Constraint("Coincident", 3, 2, 4, 1))
sketch17.addConstraint(Sketcher.Constraint("Coincident", 4, 2, 5, 1))
sketch17.addConstraint(Sketcher.Constraint("Coincident", 5, 2, 0, 1))
sketch17.addConstraint(Sketcher.Constraint("Vertical", 0))
sketch17.addConstraint(Sketcher.Constraint("Horizontal", 1))
sketch17.addConstraint(Sketcher.Constraint("Vertical", 2))
sketch17.addConstraint(Sketcher.Constraint("Horizontal", 3))
sketch17.addConstraint(Sketcher.Constraint("Vertical", 4))
sketch17.addConstraint(Sketcher.Constraint("Horizontal", 5))
sketch17.addConstraint(Sketcher.Constraint("PointOnObject", 0, 2, -1))
sketch17.addConstraint(Sketcher.Constraint("DistanceX", 1, 1, 1, 2, Q("22 mm")))
sketch17.addConstraint(Sketcher.Constraint("DistanceX", 3, 1, 3, 2, Q("18 mm")))
sketch17.addConstraint(Sketcher.Constraint("DistanceY", 0, 2, 0, 1, Q("5 mm")))
sketch17.addConstraint(Sketcher.Constraint("DistanceY", 2, 2, 2, 1, Q("20 mm")))
sketch17.addConstraint(Sketcher.Constraint("DistanceX", 0, 2, -1, 1, Q("5.5 mm")))
sketch17.setExpression("Constraints[13]", "Params.sketch17_width")
sketch17.setExpression("Constraints[14]", "Params.sketch17_width2")
sketch17.setExpression("Constraints[15]", "Params.sketch17_height")
sketch17.setExpression("Constraints[16]", "Params.sketch17_height2")
pad12 = body.newObject("PartDesign::Pad", "Pad011")
pad12.Profile = sketch17
pad12.setExpression("Length", "Params.pad12_length")

sketch18 = body.newObject("Sketcher::SketchObject", "Sketch017")
sketch18.AttachmentSupport = (doc.getObject("XY_Plane"), [""])
sketch18.MapMode = "FlatFace"
sketch18.AttachmentOffset = App.Placement(Vector(0, 0, 5), App.Rotation())
sketch18.addGeometry(Part.LineSegment(Vector(26, -10, 0), Vector(26, -15, 0)), False)
sketch18.addGeometry(Part.LineSegment(Vector(26, -15, 0), Vector(16, -15, 0)), False)
sketch18.addGeometry(Part.LineSegment(Vector(16, -15, 0), Vector(16, -10, 0)), False)
sketch18.addGeometry(Part.LineSegment(Vector(16, -10, 0), Vector(26, -10, 0)), False)
sketch18.addConstraint(Sketcher.Constraint("Coincident", 0, 2, 1, 1))
sketch18.addConstraint(Sketcher.Constraint("Coincident", 1, 2, 2, 1))
sketch18.addConstraint(Sketcher.Constraint("Coincident", 2, 2, 3, 1))
sketch18.addConstraint(Sketcher.Constraint("Coincident", 3, 2, 0, 1))
sketch18.addConstraint(Sketcher.Constraint("Vertical", 0))
sketch18.addConstraint(Sketcher.Constraint("Horizontal", 1))
sketch18.addConstraint(Sketcher.Constraint("Vertical", 2))
sketch18.addConstraint(Sketcher.Constraint("Horizontal", 3))
sketch18.addConstraint(Sketcher.Constraint("DistanceX", 1, 2, 1, 1, Q("10 mm")))
sketch18.addConstraint(Sketcher.Constraint("DistanceY", 0, 2, 0, 1, Q("5 mm")))
sketch18.addConstraint(Sketcher.Constraint("DistanceY", 0, 2, -1, 1, Q("15 mm")))
sketch18.addConstraint(Sketcher.Constraint("DistanceX", -1, 1, 0, 2, Q("26.5 mm")))
sketch18.setExpression("Constraints[8]", "Params.sketch18_width")
sketch18.setExpression("Constraints[9]", "Params.sketch18_height")
pocket6 = body.newObject("PartDesign::Pocket", "Pocket005")
pocket6.Profile = sketch18
pocket6.setExpression("Length", "Params.pocket6_length")
pocket6.Reversed = True

sketch19 = body.newObject("Sketcher::SketchObject", "Sketch018")
sketch19.AttachmentSupport = (doc.getObject("XY_Plane"), [""])
sketch19.MapMode = "FlatFace"
sketch19.AttachmentOffset = App.Placement(Vector(0, 0, 8.5), App.Rotation())
sketch19.addGeometry(Part.LineSegment(Vector(34, 5, 0), Vector(34, -20, 0)), False)
sketch19.addGeometry(Part.LineSegment(Vector(34, -20, 0), Vector(16, -20, 0)), False)
sketch19.addGeometry(Part.LineSegment(Vector(16, -20, 0), Vector(16, 0, 0)), False)
sketch19.addGeometry(Part.LineSegment(Vector(16, 0, 0), Vector(6, 0, 0)), False)
sketch19.addGeometry(Part.LineSegment(Vector(6, 0, 0), Vector(6, 5, 0)), False)
sketch19.addGeometry(Part.LineSegment(Vector(6, 5, 0), Vector(34, 5, 0)), False)
sketch19.addConstraint(Sketcher.Constraint("Coincident", 0, 2, 1, 1))
sketch19.addConstraint(Sketcher.Constraint("Coincident", 1, 2, 2, 1))
sketch19.addConstraint(Sketcher.Constraint("Coincident", 2, 2, 3, 1))
sketch19.addConstraint(Sketcher.Constraint("Coincident", 3, 2, 4, 1))
sketch19.addConstraint(Sketcher.Constraint("Coincident", 4, 2, 5, 1))
sketch19.addConstraint(Sketcher.Constraint("Coincident", 5, 2, 0, 1))
sketch19.addConstraint(Sketcher.Constraint("Vertical", 0))
sketch19.addConstraint(Sketcher.Constraint("Horizontal", 1))
sketch19.addConstraint(Sketcher.Constraint("Vertical", 2))
sketch19.addConstraint(Sketcher.Constraint("Horizontal", 3))
sketch19.addConstraint(Sketcher.Constraint("Vertical", 4))
sketch19.addConstraint(Sketcher.Constraint("Horizontal", 5))
sketch19.addConstraint(Sketcher.Constraint("PointOnObject", 2, 2, -1))
sketch19.addConstraint(Sketcher.Constraint("DistanceX", 1, 2, 1, 1, Q("18 mm")))
sketch19.addConstraint(Sketcher.Constraint("DistanceX", 3, 2, 3, 1, Q("11 mm")))
sketch19.addConstraint(Sketcher.Constraint("DistanceY", 0, 2, 0, 1, Q("25 mm")))
sketch19.addConstraint(Sketcher.Constraint("DistanceY", 2, 1, 2, 2, Q("20 mm")))
sketch19.addConstraint(Sketcher.Constraint("DistanceX", -1, 1, 0, 2, Q("34.5 mm")))
sketch19.setExpression("Constraints[13]", "Params.sketch19_width")
sketch19.setExpression("Constraints[14]", "Params.sketch19_width2")
sketch19.setExpression("Constraints[15]", "Params.sketch19_height")
sketch19.setExpression("Constraints[16]", "Params.sketch19_height2")
pocket7 = body.newObject("PartDesign::Pocket", "Pocket006")
pocket7.Profile = sketch19
pocket7.setExpression("Length", "Params.pocket7_length")
pocket7.Reversed = True

sketch20 = body.newObject("Sketcher::SketchObject", "Sketch019")
sketch20.AttachmentSupport = (doc.getObject("XY_Plane"), [""])
sketch20.MapMode = "FlatFace"
sketch20.AttachmentOffset = App.Placement(Vector(0, 0, 17.5), App.Rotation())
sketch20.addGeometry(Part.LineSegment(Vector(11, 5, 0), Vector(11, 0, 0)), False)
sketch20.addGeometry(Part.LineSegment(Vector(11, 0, 0), Vector(21, 0, 0)), False)
sketch20.addGeometry(Part.LineSegment(Vector(21, 0, 0), Vector(21, 5, 0)), False)
sketch20.addGeometry(Part.LineSegment(Vector(21, 5, 0), Vector(11, 5, 0)), False)
sketch20.addConstraint(Sketcher.Constraint("Coincident", 0, 2, 1, 1))
sketch20.addConstraint(Sketcher.Constraint("Coincident", 1, 2, 2, 1))
sketch20.addConstraint(Sketcher.Constraint("Coincident", 2, 2, 3, 1))
sketch20.addConstraint(Sketcher.Constraint("Coincident", 3, 2, 0, 1))
sketch20.addConstraint(Sketcher.Constraint("Vertical", 0))
sketch20.addConstraint(Sketcher.Constraint("Horizontal", 1))
sketch20.addConstraint(Sketcher.Constraint("Vertical", 2))
sketch20.addConstraint(Sketcher.Constraint("Horizontal", 3))
sketch20.addConstraint(Sketcher.Constraint("PointOnObject", 0, 2, -1))
sketch20.addConstraint(Sketcher.Constraint("DistanceX", 1, 1, 1, 2, Q("10 mm")))
sketch20.addConstraint(Sketcher.Constraint("DistanceY", 0, 2, 0, 1, Q("5 mm")))
sketch20.addConstraint(Sketcher.Constraint("DistanceX", -1, 1, 0, 2, Q("11 mm")))
sketch20.setExpression("Constraints[9]", "Params.sketch20_width")
sketch20.setExpression("Constraints[10]", "Params.sketch20_height")
pad13 = body.newObject("PartDesign::Pad", "Pad012")
pad13.Profile = sketch20
pad13.setExpression("Length", "Params.pad13_length")

sketch21 = body.newObject("Sketcher::SketchObject", "Sketch020")
sketch21.AttachmentSupport = (doc.getObject("XZ_Plane"), [""])
sketch21.MapMode = "FlatFace"
sketch21.AttachmentOffset = App.Placement(Vector(0, 0, -5), App.Rotation())
sketch21.addGeometry(Part.Circle(Vector(16, 23, 0), Vector(0, 0, 1), 1.5), False)
sketch21.addConstraint(Sketcher.Constraint("Diameter", 0, Q("3 mm")))
sketch21.addConstraint(Sketcher.Constraint("DistanceX", -1, 1, 0, 3, Q("16 mm")))
sketch21.addConstraint(Sketcher.Constraint("DistanceY", -1, 1, 0, 3, Q("23 mm")))
sketch21.setExpression("Constraints[0]", "Params.sketch21_diameter")
pocket8 = body.newObject("PartDesign::Pocket", "Pocket007")
pocket8.Profile = sketch21
pocket8.setExpression("Length", "Params.pocket8_length")
pocket8.Reversed = True

sketch22 = body.newObject("Sketcher::SketchObject", "Sketch021")
sketch22.AttachmentSupport = (doc.getObject("XY_Plane"), [""])
sketch22.MapMode = "FlatFace"
sketch22.AttachmentOffset = App.Placement(Vector(0, 0, -8.5), App.Rotation())
sketch22.addGeometry(Part.LineSegment(Vector(16, -10, 0), Vector(16, -15, 0)), False)
sketch22.addGeometry(Part.LineSegment(Vector(16, -15, 0), Vector(26, -15, 0)), False)
sketch22.addGeometry(Part.LineSegment(Vector(26, -15, 0), Vector(26, -10, 0)), False)
sketch22.addGeometry(Part.LineSegment(Vector(26, -10, 0), Vector(16, -10, 0)), False)
sketch22.addConstraint(Sketcher.Constraint("Coincident", 0, 2, 1, 1))
sketch22.addConstraint(Sketcher.Constraint("Coincident", 1, 2, 2, 1))
sketch22.addConstraint(Sketcher.Constraint("Coincident", 2, 2, 3, 1))
sketch22.addConstraint(Sketcher.Constraint("Coincident", 3, 2, 0, 1))
sketch22.addConstraint(Sketcher.Constraint("Vertical", 0))
sketch22.addConstraint(Sketcher.Constraint("Horizontal", 1))
sketch22.addConstraint(Sketcher.Constraint("Vertical", 2))
sketch22.addConstraint(Sketcher.Constraint("Horizontal", 3))
sketch22.addConstraint(Sketcher.Constraint("DistanceX", 1, 1, 1, 2, Q("10 mm")))
sketch22.addConstraint(Sketcher.Constraint("DistanceY", 0, 2, 0, 1, Q("5 mm")))
sketch22.addConstraint(Sketcher.Constraint("DistanceY", 0, 2, -1, 1, Q("15 mm")))
sketch22.addConstraint(Sketcher.Constraint("DistanceX", -1, 1, 0, 2, Q("16.5 mm")))
sketch22.setExpression("Constraints[8]", "Params.sketch22_width")
sketch22.setExpression("Constraints[9]", "Params.sketch22_height")
pocket9 = body.newObject("PartDesign::Pocket", "Pocket008")
pocket9.Profile = sketch22
pocket9.setExpression("Length", "Params.pocket9_length")
pocket9.Reversed = True

sketch23 = body.newObject("Sketcher::SketchObject", "Sketch022")
sketch23.AttachmentSupport = (doc.getObject("XY_Plane"), [""])
sketch23.MapMode = "FlatFace"
sketch23.AttachmentOffset = App.Placement(Vector(0, 0, -13.5), App.Rotation())
sketch23.addGeometry(Part.LineSegment(Vector(34, 5, 0), Vector(34, -20, 0)), False)
sketch23.addGeometry(Part.LineSegment(Vector(34, -20, 0), Vector(16, -20, 0)), False)
sketch23.addGeometry(Part.LineSegment(Vector(16, -20, 0), Vector(16, 0, 0)), False)
sketch23.addGeometry(Part.LineSegment(Vector(16, 0, 0), Vector(-6, 0, 0)), False)
sketch23.addGeometry(Part.LineSegment(Vector(-6, 0, 0), Vector(-6, 5, 0)), False)
sketch23.addGeometry(Part.LineSegment(Vector(-6, 5, 0), Vector(34, 5, 0)), False)
sketch23.addConstraint(Sketcher.Constraint("Coincident", 0, 2, 1, 1))
sketch23.addConstraint(Sketcher.Constraint("Coincident", 1, 2, 2, 1))
sketch23.addConstraint(Sketcher.Constraint("Coincident", 2, 2, 3, 1))
sketch23.addConstraint(Sketcher.Constraint("Coincident", 3, 2, 4, 1))
sketch23.addConstraint(Sketcher.Constraint("Coincident", 4, 2, 5, 1))
sketch23.addConstraint(Sketcher.Constraint("Coincident", 5, 2, 0, 1))
sketch23.addConstraint(Sketcher.Constraint("Vertical", 0))
sketch23.addConstraint(Sketcher.Constraint("Horizontal", 1))
sketch23.addConstraint(Sketcher.Constraint("Vertical", 2))
sketch23.addConstraint(Sketcher.Constraint("Horizontal", 3))
sketch23.addConstraint(Sketcher.Constraint("Vertical", 4))
sketch23.addConstraint(Sketcher.Constraint("Horizontal", 5))
sketch23.addConstraint(Sketcher.Constraint("PointOnObject", 2, 2, -1))
sketch23.addConstraint(Sketcher.Constraint("DistanceX", 1, 2, 1, 1, Q("18 mm")))
sketch23.addConstraint(Sketcher.Constraint("DistanceX", 3, 2, 3, 1, Q("22 mm")))
sketch23.addConstraint(Sketcher.Constraint("DistanceY", 0, 2, 0, 1, Q("25 mm")))
sketch23.addConstraint(Sketcher.Constraint("DistanceY", 2, 1, 2, 2, Q("20 mm")))
sketch23.addConstraint(Sketcher.Constraint("DistanceX", -1, 1, 0, 2, Q("34.5 mm")))
sketch23.setExpression("Constraints[13]", "Params.sketch23_width")
sketch23.setExpression("Constraints[14]", "Params.sketch23_width2")
sketch23.setExpression("Constraints[15]", "Params.sketch23_height")
sketch23.setExpression("Constraints[16]", "Params.sketch23_height2")
pad14 = body.newObject("PartDesign::Pad", "Pad013")
pad14.Profile = sketch23
pad14.setExpression("Length", "Params.pad14_length")
pad14.Reversed = True

sketch24 = body.newObject("Sketcher::SketchObject", "Sketch023")
sketch24.AttachmentSupport = (doc.getObject("XY_Plane"), [""])
sketch24.MapMode = "FlatFace"
sketch24.AttachmentOffset = App.Placement(Vector(0, 0, -8.5), App.Rotation())
sketch24.addGeometry(Part.LineSegment(Vector(6, 5, 0), Vector(6, 0, 0)), False)
sketch24.addGeometry(Part.LineSegment(Vector(6, 0, 0), Vector(16, 0, 0)), False)
sketch24.addGeometry(Part.LineSegment(Vector(16, 0, 0), Vector(16, -20, 0)), False)
sketch24.addGeometry(Part.LineSegment(Vector(16, -20, 0), Vector(34, -20, 0)), False)
sketch24.addGeometry(Part.LineSegment(Vector(34, -20, 0), Vector(34, 5, 0)), False)
sketch24.addGeometry(Part.LineSegment(Vector(34, 5, 0), Vector(6, 5, 0)), False)
sketch24.addConstraint(Sketcher.Constraint("Coincident", 0, 2, 1, 1))
sketch24.addConstraint(Sketcher.Constraint("Coincident", 1, 2, 2, 1))
sketch24.addConstraint(Sketcher.Constraint("Coincident", 2, 2, 3, 1))
sketch24.addConstraint(Sketcher.Constraint("Coincident", 3, 2, 4, 1))
sketch24.addConstraint(Sketcher.Constraint("Coincident", 4, 2, 5, 1))
sketch24.addConstraint(Sketcher.Constraint("Coincident", 5, 2, 0, 1))
sketch24.addConstraint(Sketcher.Constraint("Vertical", 0))
sketch24.addConstraint(Sketcher.Constraint("Horizontal", 1))
sketch24.addConstraint(Sketcher.Constraint("Vertical", 2))
sketch24.addConstraint(Sketcher.Constraint("Horizontal", 3))
sketch24.addConstraint(Sketcher.Constraint("Vertical", 4))
sketch24.addConstraint(Sketcher.Constraint("Horizontal", 5))
sketch24.addConstraint(Sketcher.Constraint("PointOnObject", 0, 2, -1))
sketch24.addConstraint(Sketcher.Constraint("DistanceX", 1, 1, 1, 2, Q("11 mm")))
sketch24.addConstraint(Sketcher.Constraint("DistanceX", 3, 1, 3, 2, Q("18 mm")))
sketch24.addConstraint(Sketcher.Constraint("DistanceY", 0, 2, 0, 1, Q("5 mm")))
sketch24.addConstraint(Sketcher.Constraint("DistanceY", 2, 2, 2, 1, Q("20 mm")))
sketch24.addConstraint(Sketcher.Constraint("DistanceX", -1, 1, 0, 2, Q("5.5 mm")))
sketch24.setExpression("Constraints[13]", "Params.sketch24_width")
sketch24.setExpression("Constraints[14]", "Params.sketch24_width2")
sketch24.setExpression("Constraints[15]", "Params.sketch24_height")
sketch24.setExpression("Constraints[16]", "Params.sketch24_height2")
pocket10 = body.newObject("PartDesign::Pocket", "Pocket009")
pocket10.Profile = sketch24
pocket10.setExpression("Length", "Params.pocket10_length")

sketch25 = body.newObject("Sketcher::SketchObject", "Sketch024")
sketch25.AttachmentSupport = (doc.getObject("XY_Plane"), [""])
sketch25.MapMode = "FlatFace"
sketch25.AttachmentOffset = App.Placement(Vector(0, 0, -17.5), App.Rotation())
sketch25.addGeometry(Part.LineSegment(Vector(11, 0, 0), Vector(11, 5, 0)), False)
sketch25.addGeometry(Part.LineSegment(Vector(11, 5, 0), Vector(21, 5, 0)), False)
sketch25.addGeometry(Part.LineSegment(Vector(21, 5, 0), Vector(21, 0, 0)), False)
sketch25.addGeometry(Part.LineSegment(Vector(21, 0, 0), Vector(11, 0, 0)), False)
sketch25.addConstraint(Sketcher.Constraint("Coincident", 0, 2, 1, 1))
sketch25.addConstraint(Sketcher.Constraint("Coincident", 1, 2, 2, 1))
sketch25.addConstraint(Sketcher.Constraint("Coincident", 2, 2, 3, 1))
sketch25.addConstraint(Sketcher.Constraint("Coincident", 3, 2, 0, 1))
sketch25.addConstraint(Sketcher.Constraint("Vertical", 0))
sketch25.addConstraint(Sketcher.Constraint("Horizontal", 1))
sketch25.addConstraint(Sketcher.Constraint("Vertical", 2))
sketch25.addConstraint(Sketcher.Constraint("Horizontal", 3))
sketch25.addConstraint(Sketcher.Constraint("PointOnObject", 2, 2, -1))
sketch25.addConstraint(Sketcher.Constraint("DistanceX", 1, 1, 1, 2, Q("10 mm")))
sketch25.addConstraint(Sketcher.Constraint("DistanceY", 0, 1, 0, 2, Q("5 mm")))
sketch25.addConstraint(Sketcher.Constraint("DistanceX", -1, 1, 0, 2, Q("11 mm")))
sketch25.setExpression("Constraints[9]", "Params.sketch25_width")
sketch25.setExpression("Constraints[10]", "Params.sketch25_height")
pad15 = body.newObject("PartDesign::Pad", "Pad014")
pad15.Profile = sketch25
pad15.setExpression("Length", "Params.pad15_length")
pad15.Reversed = True

sketch26 = body.newObject("Sketcher::SketchObject", "Sketch025")
sketch26.AttachmentSupport = (doc.getObject("XZ_Plane"), [""])
sketch26.MapMode = "FlatFace"
sketch26.AttachmentOffset = App.Placement(Vector(0, 0, -5), App.Rotation())
sketch26.addGeometry(Part.Circle(Vector(16, -23, 0), Vector(0, 0, 1), 1.5), False)
sketch26.addConstraint(Sketcher.Constraint("Diameter", 0, Q("3 mm")))
sketch26.addConstraint(Sketcher.Constraint("DistanceX", -1, 1, 0, 3, Q("16 mm")))
sketch26.addConstraint(Sketcher.Constraint("DistanceY", 0, 3, -1, 1, Q("23 mm")))
sketch26.setExpression("Constraints[0]", "Params.sketch26_diameter")
pocket11 = body.newObject("PartDesign::Pocket", "Pocket010")
pocket11.Profile = sketch26
pocket11.setExpression("Length", "Params.pocket11_length")
pocket11.Reversed = True

doc.recompute()
